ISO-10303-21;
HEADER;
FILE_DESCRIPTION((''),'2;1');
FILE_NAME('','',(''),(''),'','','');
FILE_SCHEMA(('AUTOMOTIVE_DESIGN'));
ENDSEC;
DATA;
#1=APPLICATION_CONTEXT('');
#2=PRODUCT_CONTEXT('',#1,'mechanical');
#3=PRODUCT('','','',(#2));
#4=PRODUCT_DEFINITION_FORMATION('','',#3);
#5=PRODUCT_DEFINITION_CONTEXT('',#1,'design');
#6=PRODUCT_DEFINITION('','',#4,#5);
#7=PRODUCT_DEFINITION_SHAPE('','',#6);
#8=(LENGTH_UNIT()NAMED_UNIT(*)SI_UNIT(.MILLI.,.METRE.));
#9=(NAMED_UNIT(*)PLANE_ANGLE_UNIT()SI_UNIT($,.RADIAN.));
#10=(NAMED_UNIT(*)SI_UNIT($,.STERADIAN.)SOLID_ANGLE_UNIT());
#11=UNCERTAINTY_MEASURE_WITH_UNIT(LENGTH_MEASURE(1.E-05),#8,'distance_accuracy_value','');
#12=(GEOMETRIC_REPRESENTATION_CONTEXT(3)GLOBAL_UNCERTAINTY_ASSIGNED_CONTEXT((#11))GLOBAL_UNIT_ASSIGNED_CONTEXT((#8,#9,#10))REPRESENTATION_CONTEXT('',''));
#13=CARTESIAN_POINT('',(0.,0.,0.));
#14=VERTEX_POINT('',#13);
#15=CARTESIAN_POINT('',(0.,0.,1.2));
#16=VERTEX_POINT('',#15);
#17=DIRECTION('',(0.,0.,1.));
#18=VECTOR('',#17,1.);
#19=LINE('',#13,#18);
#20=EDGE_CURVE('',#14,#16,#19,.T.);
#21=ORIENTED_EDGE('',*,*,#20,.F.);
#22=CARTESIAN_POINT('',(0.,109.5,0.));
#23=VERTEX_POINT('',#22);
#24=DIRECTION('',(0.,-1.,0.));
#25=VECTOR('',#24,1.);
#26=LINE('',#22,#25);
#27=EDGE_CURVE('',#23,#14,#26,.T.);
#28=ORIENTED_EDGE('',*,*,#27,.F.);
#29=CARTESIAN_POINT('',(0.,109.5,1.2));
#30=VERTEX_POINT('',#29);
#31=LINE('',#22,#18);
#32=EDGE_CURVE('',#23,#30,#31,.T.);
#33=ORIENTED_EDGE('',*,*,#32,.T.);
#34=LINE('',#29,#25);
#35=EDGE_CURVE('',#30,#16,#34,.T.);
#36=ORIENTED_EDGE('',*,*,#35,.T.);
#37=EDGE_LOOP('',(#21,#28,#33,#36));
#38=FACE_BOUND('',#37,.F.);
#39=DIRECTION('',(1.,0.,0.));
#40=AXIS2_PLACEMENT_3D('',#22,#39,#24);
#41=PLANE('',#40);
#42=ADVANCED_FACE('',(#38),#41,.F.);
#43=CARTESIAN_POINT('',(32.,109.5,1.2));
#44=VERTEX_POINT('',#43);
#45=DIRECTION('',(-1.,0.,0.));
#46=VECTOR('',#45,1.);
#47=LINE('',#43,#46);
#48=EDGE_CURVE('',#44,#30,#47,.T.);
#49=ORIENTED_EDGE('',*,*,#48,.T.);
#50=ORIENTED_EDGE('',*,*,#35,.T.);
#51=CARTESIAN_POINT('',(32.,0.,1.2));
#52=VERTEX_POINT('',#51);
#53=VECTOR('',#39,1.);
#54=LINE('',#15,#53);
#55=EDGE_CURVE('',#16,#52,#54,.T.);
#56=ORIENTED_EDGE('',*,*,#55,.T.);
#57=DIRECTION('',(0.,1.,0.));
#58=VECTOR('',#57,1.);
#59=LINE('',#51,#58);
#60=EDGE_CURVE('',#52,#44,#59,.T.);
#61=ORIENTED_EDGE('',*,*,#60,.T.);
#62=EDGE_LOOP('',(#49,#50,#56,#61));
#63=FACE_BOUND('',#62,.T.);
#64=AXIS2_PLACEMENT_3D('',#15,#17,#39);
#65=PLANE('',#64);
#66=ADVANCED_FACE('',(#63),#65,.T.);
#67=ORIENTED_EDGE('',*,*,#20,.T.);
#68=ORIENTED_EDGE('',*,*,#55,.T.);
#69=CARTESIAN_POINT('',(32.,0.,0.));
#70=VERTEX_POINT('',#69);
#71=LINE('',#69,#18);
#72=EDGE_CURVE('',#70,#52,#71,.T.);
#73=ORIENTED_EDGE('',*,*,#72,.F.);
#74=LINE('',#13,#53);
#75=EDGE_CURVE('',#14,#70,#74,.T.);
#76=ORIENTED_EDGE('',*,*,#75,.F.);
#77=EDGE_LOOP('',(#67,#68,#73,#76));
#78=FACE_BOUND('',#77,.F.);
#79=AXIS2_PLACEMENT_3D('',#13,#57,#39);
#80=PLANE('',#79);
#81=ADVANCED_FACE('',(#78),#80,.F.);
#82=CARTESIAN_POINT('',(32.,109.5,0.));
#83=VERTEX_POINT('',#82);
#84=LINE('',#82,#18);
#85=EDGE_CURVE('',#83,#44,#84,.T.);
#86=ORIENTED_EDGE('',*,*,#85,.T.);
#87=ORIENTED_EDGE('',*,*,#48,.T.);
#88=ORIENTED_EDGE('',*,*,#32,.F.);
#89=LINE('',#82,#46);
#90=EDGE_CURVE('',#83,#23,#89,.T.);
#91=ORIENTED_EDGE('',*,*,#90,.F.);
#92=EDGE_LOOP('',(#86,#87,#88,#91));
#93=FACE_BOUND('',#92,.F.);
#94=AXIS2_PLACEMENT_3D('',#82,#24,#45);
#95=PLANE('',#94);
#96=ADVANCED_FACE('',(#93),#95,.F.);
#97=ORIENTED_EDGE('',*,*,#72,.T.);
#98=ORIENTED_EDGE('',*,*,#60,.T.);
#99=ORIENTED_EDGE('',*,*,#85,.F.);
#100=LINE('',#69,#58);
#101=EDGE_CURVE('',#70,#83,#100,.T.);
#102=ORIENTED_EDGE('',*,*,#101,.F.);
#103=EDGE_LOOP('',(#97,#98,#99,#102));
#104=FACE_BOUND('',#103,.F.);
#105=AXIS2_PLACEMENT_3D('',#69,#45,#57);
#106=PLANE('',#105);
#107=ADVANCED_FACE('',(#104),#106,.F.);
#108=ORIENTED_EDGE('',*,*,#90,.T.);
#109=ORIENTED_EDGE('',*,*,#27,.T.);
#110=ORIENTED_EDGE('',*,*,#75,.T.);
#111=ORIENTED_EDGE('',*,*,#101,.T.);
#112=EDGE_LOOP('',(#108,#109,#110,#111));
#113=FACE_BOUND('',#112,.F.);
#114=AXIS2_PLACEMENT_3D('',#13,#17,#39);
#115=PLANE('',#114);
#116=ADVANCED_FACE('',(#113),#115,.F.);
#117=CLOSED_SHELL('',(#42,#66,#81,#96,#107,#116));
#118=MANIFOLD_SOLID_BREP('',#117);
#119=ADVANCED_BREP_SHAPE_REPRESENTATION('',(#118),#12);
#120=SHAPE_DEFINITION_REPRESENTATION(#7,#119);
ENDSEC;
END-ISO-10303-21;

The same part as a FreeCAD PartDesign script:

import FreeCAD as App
import Part
import Sketcher
from FreeCAD import Vector
Q = App.Units.Quantity

doc = App.newDocument("Part")
body = doc.addObject("PartDesign::Body", "Body")

# Sketch on XY plane
sketch1 = body.newObject("Sketcher::SketchObject", "Sketch")
sketch1.AttachmentSupport = (doc.getObject("XY_Plane"), [""])
sketch1.MapMode = "FlatFace"
sketch1.addGeometry([
    Part.LineSegment(Vector(0, 110, 0), Vector(0, 0, 0)),
    Part.LineSegment(Vector(0, 0, 0), Vector(32, 0, 0)),
    Part.LineSegment(Vector(32, 0, 0), Vector(32, 110, 0)),
    Part.LineSegment(Vector(32, 110, 0), Vector(0, 110, 0)),
], False)
sketch1.addConstraint([
    Sketcher.Constraint("Coincident", 0, 2, 1, 1),
    Sketcher.Constraint("Coincident", 1, 2, 2, 1),
    Sketcher.Constraint("Coincident", 2, 2, 3, 1),
    Sketcher.Constraint("Coincident", 3, 2, 0, 1),
    Sketcher.Constraint("Vertical", 0),
    Sketcher.Constraint("Horizontal", 1),
    Sketcher.Constraint("Vertical", 2),
    Sketcher.Constraint("Horizontal", 3),
    Sketcher.Constraint("Coincident", 0, 2, -1, 1),
    Sketcher.Constraint("DistanceX", 1, 1, 1, 2, Q("32 mm")),
    Sketcher.Constraint("DistanceY", 0, 2, 0, 1, Q("109.5 mm")),
])
pad1 = body.newObject("PartDesign::Pad", "Pad")
pad1.Profile = sketch1
pad1.Length = 1.2

doc.recompute()
